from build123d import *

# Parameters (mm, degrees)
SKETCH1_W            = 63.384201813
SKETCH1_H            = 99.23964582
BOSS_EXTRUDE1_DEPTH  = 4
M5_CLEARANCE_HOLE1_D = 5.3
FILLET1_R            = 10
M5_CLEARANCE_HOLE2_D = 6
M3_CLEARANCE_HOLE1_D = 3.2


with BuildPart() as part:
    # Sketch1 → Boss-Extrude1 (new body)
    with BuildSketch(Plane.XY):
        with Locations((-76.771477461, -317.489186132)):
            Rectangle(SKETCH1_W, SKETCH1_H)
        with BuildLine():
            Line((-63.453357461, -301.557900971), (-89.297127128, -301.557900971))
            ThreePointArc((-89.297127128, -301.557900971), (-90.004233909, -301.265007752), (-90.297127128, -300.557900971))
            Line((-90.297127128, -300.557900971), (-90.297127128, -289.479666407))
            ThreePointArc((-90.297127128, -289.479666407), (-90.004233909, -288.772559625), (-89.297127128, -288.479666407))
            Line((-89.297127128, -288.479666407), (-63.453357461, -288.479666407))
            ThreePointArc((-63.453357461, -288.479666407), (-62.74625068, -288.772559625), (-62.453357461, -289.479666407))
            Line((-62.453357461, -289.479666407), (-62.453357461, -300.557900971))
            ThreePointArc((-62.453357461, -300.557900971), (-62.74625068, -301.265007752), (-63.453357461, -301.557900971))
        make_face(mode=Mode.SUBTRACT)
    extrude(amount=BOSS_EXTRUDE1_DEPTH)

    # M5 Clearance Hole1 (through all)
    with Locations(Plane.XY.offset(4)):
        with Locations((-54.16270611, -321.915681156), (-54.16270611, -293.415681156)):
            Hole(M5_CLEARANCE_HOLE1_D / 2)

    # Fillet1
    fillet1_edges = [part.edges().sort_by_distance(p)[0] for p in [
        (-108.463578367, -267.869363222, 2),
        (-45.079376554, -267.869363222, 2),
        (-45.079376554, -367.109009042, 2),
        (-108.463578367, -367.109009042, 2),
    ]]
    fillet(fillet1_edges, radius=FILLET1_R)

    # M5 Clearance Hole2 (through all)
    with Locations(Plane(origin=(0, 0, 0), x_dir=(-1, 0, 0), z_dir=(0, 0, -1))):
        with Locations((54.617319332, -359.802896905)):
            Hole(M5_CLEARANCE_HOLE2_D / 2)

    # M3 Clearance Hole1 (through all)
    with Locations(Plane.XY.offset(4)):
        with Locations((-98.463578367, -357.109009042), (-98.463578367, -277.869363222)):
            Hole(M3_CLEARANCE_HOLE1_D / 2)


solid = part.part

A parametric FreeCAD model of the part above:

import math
import FreeCAD as App
import Part
import Sketcher

V = App.Vector
Q = App.Units.Quantity


def edges_at(feature, points):
    """Names of the edges that pass closest to the given points."""
    edges = feature.Shape.Edges
    near = lambda p: min(range(len(edges)), key=lambda i: edges[i].distToShape(Part.Vertex(*p))[0])
    return sorted({f"Edge{near(p) + 1}" for p in points})


def add_polygon(sketch, points):
    """Adds a closed chain of lines whose ends are joined by coincident constraints."""
    first, n = sketch.GeometryCount, len(points)
    for a, b in zip(points, points[1:] + points[:1]):
        sketch.addGeometry(Part.LineSegment(App.Vector(*a, 0), App.Vector(*b, 0)), False)
    for i in range(n):
        sketch.addConstraint(Sketcher.Constraint("Coincident", first + i, 2, first + (i + 1) % n, 1))

doc = App.newDocument("Part")
body = doc.addObject("PartDesign::Body", "Body")

sketch1 = body.newObject("Sketcher::SketchObject", "Sketch")
sketch1.AttachmentSupport = (doc.getObject("XY_Plane"), [""])
sketch1.MapMode = "FlatFace"
add_polygon(sketch1, [(-108.5, -267.9), (-108.5, -367.1), (-45.1, -367.1), (-45.1, -267.9)])
sketch1.addGeometry(Part.ArcOfCircle(Part.Circle(V(-63.5, -300.6, 0), V(0, 0, 1), 1), math.radians(-90), math.radians(0)), False)
sketch1.addGeometry(Part.LineSegment(V(-63.5, -301.6, 0), V(-89.3, -301.6, 0)), False)
sketch1.addGeometry(Part.ArcOfCircle(Part.Circle(V(-89.3, -300.6, 0), V(0, 0, 1), 1), math.radians(-180), math.radians(-90)), False)
sketch1.addGeometry(Part.LineSegment(V(-90.3, -300.6, 0), V(-90.3, -289.5, 0)), False)
sketch1.addGeometry(Part.ArcOfCircle(Part.Circle(V(-89.3, -289.5, 0), V(0, 0, 1), 1), math.radians(90), math.radians(180)), False)
sketch1.addGeometry(Part.LineSegment(V(-89.3, -288.5, 0), V(-63.5, -288.5, 0)), False)
sketch1.addGeometry(Part.ArcOfCircle(Part.Circle(V(-63.5, -289.5, 0), V(0, 0, 1), 1), math.radians(0), math.radians(90)), False)
sketch1.addGeometry(Part.LineSegment(V(-62.5, -289.5, 0), V(-62.5, -300.6, 0)), False)
sketch1.addConstraint([
    Sketcher.Constraint("Tangent", 4, 1, 5, 1),
    Sketcher.Constraint("Tangent", 5, 2, 6, 2),
    Sketcher.Constraint("Tangent", 6, 1, 7, 1),
    Sketcher.Constraint("Tangent", 7, 2, 8, 2),
    Sketcher.Constraint("Tangent", 8, 1, 9, 1),
    Sketcher.Constraint("Tangent", 9, 2, 10, 2),
    Sketcher.Constraint("Tangent", 10, 1, 11, 1),
    Sketcher.Constraint("Tangent", 11, 2, 4, 2),
    Sketcher.Constraint("Vertical", 0),
    Sketcher.Constraint("Horizontal", 1),
    Sketcher.Constraint("Vertical", 2),
    Sketcher.Constraint("Horizontal", 3),
    Sketcher.Constraint("Horizontal", 5),
    Sketcher.Constraint("Vertical", 7),
    Sketcher.Constraint("Horizontal", 9),
    Sketcher.Constraint("Vertical", 11),
    Sketcher.Constraint("Equal", 4, 6),
    Sketcher.Constraint("Equal", 6, 8),
    Sketcher.Constraint("Equal", 8, 10),
    Sketcher.Constraint("Radius", 4, Q("1 mm")),
    Sketcher.Constraint("DistanceX", 1, 1, 1, 2, Q("63.384202 mm")),
    Sketcher.Constraint("DistanceX", 5, 2, 5, 1, Q("25.84377 mm")),
    Sketcher.Constraint("DistanceY", 4, 3, -1, 1, Q("300.557901 mm")),
    Sketcher.Constraint("DistanceY", 0, 2, 0, 1, Q("99.239646 mm")),
    Sketcher.Constraint("DistanceY", 7, 1, 7, 2, Q("11.078235 mm")),
    Sketcher.Constraint("DistanceX", 0, 2, -1, 1, Q("108.463578 mm")),
    Sketcher.Constraint("DistanceY", 0, 2, -1, 1, Q("367.109009 mm")),
    Sketcher.Constraint("DistanceX", 0, 2, 6, 3, Q("19.166451 mm")),
])
pad1 = body.newObject("PartDesign::Pad", "Pad")
pad1.Profile = sketch1
pad1.Length = 4

sketch2 = body.newObject("Sketcher::SketchObject", "Sketch001")
sketch2.AttachmentSupport = (doc.getObject("XY_Plane"), [""])
sketch2.MapMode = "FlatFace"
sketch2.AttachmentOffset = App.Placement(V(0, 0, 4), App.Rotation())
sketch2.addGeometry([
    Part.Circle(V(-54.2, -321.9, 0), V(0, 0, 1), 2.6),
    Part.Circle(V(-54.2, -293.4, 0), V(0, 0, 1), 2.6),
], False)
sketch2.addConstraint([
    Sketcher.Constraint("Equal", 0, 1),
    Sketcher.Constraint("Vertical", 0, 3, 1, 3),
    Sketcher.Constraint("Diameter", 0, Q("5.3 mm")),
    Sketcher.Constraint("DistanceY", 0, 3, 1, 3, Q("28.5 mm")),
    Sketcher.Constraint("DistanceY", 0, 3, -1, 1, Q("321.915681 mm")),
    Sketcher.Constraint("DistanceX", 0, 3, -1, 1, Q("54.162706 mm")),
])
doc.recompute()
hole = body.newObject("PartDesign::Hole", "Hole")
hole.Profile = sketch2
hole.ThreadType = "None"
hole.Diameter = 5.3
hole.DepthType = "ThroughAll"
doc.recompute()

fillet = body.newObject("PartDesign::Fillet", "Fillet")
fillet.Base = (hole, edges_at(hole, [
    (-108.464, -267.869, 2),
    (-45.079, -267.869, 2),
    (-45.079, -367.109, 2),
    (-108.464, -367.109, 2),
]))
fillet.Radius = 10

sketch3 = body.newObject("Sketcher::SketchObject", "Sketch002")
sketch3.AttachmentSupport = (doc.getObject("XY_Plane"), [""])
sketch3.MapMode = "FlatFace"
sketch3.addGeometry(Part.Circle(V(-54.6, -359.8, 0), V(0, 0, 1), 3), False)
sketch3.addConstraint([
    Sketcher.Constraint("Diameter", 0, Q("6 mm")),
    Sketcher.Constraint("DistanceX", 0, 3, -1, 1, Q("54.617319 mm")),
    Sketcher.Constraint("DistanceY", 0, 3, -1, 1, Q("359.802897 mm")),
])
doc.recompute()
hole2 = body.newObject("PartDesign::Hole", "Hole001")
hole2.Profile = sketch3
hole2.ThreadType = "None"
hole2.Diameter = 6
hole2.DepthType = "ThroughAll"
hole2.Reversed = True

sketch4 = body.newObject("Sketcher::SketchObject", "Sketch003")
sketch4.AttachmentSupport = (doc.getObject("XY_Plane"), [""])
sketch4.MapMode = "FlatFace"
sketch4.AttachmentOffset = App.Placement(V(0, 0, 4), App.Rotation())
sketch4.addGeometry([
    Part.Circle(V(-98.5, -357.1, 0), V(0, 0, 1), 1.6),
    Part.Circle(V(-98.5, -277.9, 0), V(0, 0, 1), 1.6),
], False)
sketch4.addConstraint([
    Sketcher.Constraint("Equal", 0, 1),
    Sketcher.Constraint("Vertical", 0, 3, 1, 3),
    Sketcher.Constraint("Diameter", 0, Q("3.2 mm")),
    Sketcher.Constraint("DistanceX", 0, 3, -1, 1, Q("98.463578 mm")),
    Sketcher.Constraint("DistanceY", 0, 3, -1, 1, Q("357.109009 mm")),
    Sketcher.Constraint("DistanceY", 1, 3, -1, 1, Q("277.869363 mm")),
])
doc.recompute()
hole3 = body.newObject("PartDesign::Hole", "Hole002")
hole3.Profile = sketch4
hole3.ThreadType = "None"
hole3.Diameter = 3.2
hole3.DepthType = "ThroughAll"

doc.recompute()
